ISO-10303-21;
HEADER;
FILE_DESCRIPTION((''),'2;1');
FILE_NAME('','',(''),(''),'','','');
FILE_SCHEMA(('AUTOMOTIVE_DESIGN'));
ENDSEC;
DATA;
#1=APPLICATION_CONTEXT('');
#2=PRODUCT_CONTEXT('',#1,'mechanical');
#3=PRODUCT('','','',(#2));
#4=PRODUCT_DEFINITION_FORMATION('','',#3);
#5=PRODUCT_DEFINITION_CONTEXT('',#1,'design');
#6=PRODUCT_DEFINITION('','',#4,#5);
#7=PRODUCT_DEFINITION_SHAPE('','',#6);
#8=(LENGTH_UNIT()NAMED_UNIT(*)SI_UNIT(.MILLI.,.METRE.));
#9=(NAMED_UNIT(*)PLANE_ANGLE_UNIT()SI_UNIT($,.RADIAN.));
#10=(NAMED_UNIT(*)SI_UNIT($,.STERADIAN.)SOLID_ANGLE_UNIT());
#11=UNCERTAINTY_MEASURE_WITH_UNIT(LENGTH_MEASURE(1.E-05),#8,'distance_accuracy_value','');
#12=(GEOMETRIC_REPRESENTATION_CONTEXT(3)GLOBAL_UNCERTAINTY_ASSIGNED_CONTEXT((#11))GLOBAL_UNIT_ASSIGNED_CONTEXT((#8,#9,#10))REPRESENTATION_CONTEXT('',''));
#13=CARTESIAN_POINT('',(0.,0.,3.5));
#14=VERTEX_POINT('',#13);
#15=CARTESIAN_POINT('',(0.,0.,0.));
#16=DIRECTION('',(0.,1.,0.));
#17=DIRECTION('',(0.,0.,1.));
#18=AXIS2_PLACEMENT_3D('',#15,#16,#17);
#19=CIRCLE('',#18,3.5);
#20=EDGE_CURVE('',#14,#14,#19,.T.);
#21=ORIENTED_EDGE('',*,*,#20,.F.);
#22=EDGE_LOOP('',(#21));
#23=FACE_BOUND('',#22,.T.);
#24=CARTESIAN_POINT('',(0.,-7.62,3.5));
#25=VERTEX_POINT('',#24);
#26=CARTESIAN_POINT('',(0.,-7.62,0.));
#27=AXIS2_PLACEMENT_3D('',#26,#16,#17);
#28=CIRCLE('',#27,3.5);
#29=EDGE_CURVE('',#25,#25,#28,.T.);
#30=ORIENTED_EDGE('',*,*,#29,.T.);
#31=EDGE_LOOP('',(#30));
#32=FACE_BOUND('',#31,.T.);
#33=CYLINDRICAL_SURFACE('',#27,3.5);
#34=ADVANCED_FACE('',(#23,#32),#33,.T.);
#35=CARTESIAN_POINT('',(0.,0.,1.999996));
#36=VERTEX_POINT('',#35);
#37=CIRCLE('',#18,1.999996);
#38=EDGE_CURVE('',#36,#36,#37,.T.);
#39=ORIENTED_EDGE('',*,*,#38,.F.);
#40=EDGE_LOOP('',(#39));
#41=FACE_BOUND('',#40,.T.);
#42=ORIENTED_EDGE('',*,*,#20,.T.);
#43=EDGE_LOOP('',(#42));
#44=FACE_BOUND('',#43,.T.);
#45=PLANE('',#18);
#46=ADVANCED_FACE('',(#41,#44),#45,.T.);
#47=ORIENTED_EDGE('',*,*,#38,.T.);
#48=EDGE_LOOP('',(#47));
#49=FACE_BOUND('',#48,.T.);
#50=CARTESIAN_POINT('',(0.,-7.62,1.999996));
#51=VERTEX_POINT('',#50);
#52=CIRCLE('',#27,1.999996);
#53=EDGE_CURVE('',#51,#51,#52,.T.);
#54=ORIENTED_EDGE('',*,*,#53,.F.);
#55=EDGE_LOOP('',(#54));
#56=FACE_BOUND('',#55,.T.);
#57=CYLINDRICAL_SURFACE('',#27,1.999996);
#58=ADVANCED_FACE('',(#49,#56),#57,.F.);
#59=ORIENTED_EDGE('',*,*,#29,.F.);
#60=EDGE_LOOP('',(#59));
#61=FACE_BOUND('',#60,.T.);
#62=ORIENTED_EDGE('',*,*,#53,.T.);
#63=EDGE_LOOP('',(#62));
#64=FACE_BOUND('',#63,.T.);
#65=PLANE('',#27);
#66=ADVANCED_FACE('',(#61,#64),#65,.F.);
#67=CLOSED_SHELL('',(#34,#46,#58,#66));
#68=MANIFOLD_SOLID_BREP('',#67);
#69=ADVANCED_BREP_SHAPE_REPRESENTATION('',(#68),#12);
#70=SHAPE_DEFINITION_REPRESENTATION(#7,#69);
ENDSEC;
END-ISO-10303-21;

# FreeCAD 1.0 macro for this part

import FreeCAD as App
import Part
import Sketcher

V = App.Vector

doc = App.newDocument("Part")
body = doc.addObject("PartDesign::Body", "Body")

# Sketch on XZ plane
sketch1 = body.newObject("Sketcher::SketchObject", "Sketch")
sketch1.AttachmentSupport = (doc.getObject("XZ_Plane"), [""])
sketch1.MapMode = "FlatFace"
sketch1.addGeometry([
    Part.Circle(V(0, 0, 0), V(0, 0, 1), 3.5),
    Part.Circle(V(0, 0, 0), V(0, 0, 1), 2),
], False)
sketch1.addConstraint([
    Sketcher.Constraint("Coincident", 0, 3, -1, 1),
    Sketcher.Constraint("Coincident", 1, 3, -1, 1),
    Sketcher.Constraint("Diameter", 0, 7.0),
    Sketcher.Constraint("Diameter", 1, 3.999992),
])
pad1 = body.newObject("PartDesign::Pad", "Pad")
pad1.Profile = sketch1
pad1.Length = 7.62

doc.recompute()
